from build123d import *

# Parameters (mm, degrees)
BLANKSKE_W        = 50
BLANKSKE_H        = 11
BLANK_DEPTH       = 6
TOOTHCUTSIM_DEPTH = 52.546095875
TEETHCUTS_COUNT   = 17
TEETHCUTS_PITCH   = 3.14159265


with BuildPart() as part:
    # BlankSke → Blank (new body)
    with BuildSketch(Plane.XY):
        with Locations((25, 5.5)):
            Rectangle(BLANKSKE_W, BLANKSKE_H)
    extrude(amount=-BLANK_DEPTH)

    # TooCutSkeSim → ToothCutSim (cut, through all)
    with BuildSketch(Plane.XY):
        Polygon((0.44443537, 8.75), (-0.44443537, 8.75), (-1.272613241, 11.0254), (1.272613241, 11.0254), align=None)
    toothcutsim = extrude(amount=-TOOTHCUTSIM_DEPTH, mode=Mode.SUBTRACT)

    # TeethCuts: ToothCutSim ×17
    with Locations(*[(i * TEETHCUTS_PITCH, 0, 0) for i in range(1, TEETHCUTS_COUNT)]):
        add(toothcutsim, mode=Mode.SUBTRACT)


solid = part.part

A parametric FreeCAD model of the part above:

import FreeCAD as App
import Part
import Sketcher

V = App.Vector
Q = App.Units.Quantity

doc = App.newDocument("Part")
params = doc.addObject("Spreadsheet::Sheet", "Params")
for row, (alias, value) in enumerate([
    ("sketch1_width", "50 mm"),
    ("sketch1_height", "11 mm"),
    ("pad1_length", "6 mm"),
    ("linearpattern_pitch", "3.141593 mm"),
], start=1):
    params.set(f"A{row}", alias)
    params.set(f"B{row}", "=" + value)
    params.setAlias(f"B{row}", alias)

body = doc.addObject("PartDesign::Body", "Body")

sketch1 = body.newObject("Sketcher::SketchObject", "Sketch")
sketch1.AttachmentSupport = (doc.getObject("XY_Plane"), [""])
sketch1.MapMode = "FlatFace"
sketch1.addGeometry(Part.LineSegment(V(0, 11, 0), V(0, 0, 0)), False)
sketch1.addGeometry(Part.LineSegment(V(0, 0, 0), V(50, 0, 0)), False)
sketch1.addGeometry(Part.LineSegment(V(50, 0, 0), V(50, 11, 0)), False)
sketch1.addGeometry(Part.LineSegment(V(50, 11, 0), V(0, 11, 0)), False)
sketch1.addConstraint(Sketcher.Constraint("Coincident", 0, 2, 1, 1))
sketch1.addConstraint(Sketcher.Constraint("Coincident", 1, 2, 2, 1))
sketch1.addConstraint(Sketcher.Constraint("Coincident", 2, 2, 3, 1))
sketch1.addConstraint(Sketcher.Constraint("Coincident", 3, 2, 0, 1))
sketch1.addConstraint(Sketcher.Constraint("Vertical", 0))
sketch1.addConstraint(Sketcher.Constraint("Horizontal", 1))
sketch1.addConstraint(Sketcher.Constraint("Vertical", 2))
sketch1.addConstraint(Sketcher.Constraint("Horizontal", 3))
sketch1.addConstraint(Sketcher.Constraint("Coincident", 0, 2, -1, 1))
sketch1.addConstraint(Sketcher.Constraint("DistanceX", 1, 1, 1, 2, Q("50 mm")))
sketch1.addConstraint(Sketcher.Constraint("DistanceY", 0, 2, 0, 1, Q("11 mm")))
sketch1.setExpression("Constraints[9]", "Params.sketch1_width")
sketch1.setExpression("Constraints[10]", "Params.sketch1_height")
pad1 = body.newObject("PartDesign::Pad", "Pad")
pad1.Profile = sketch1
pad1.setExpression("Length", "Params.pad1_length")
pad1.Reversed = True

sketch2 = body.newObject("Sketcher::SketchObject", "Sketch001")
sketch2.AttachmentSupport = (doc.getObject("XY_Plane"), [""])
sketch2.MapMode = "FlatFace"
sketch2.addGeometry(Part.LineSegment(V(-0.444435, 8.75, 0), V(0.444435, 8.75, 0)), False)
sketch2.addGeometry(Part.LineSegment(V(0.444435, 8.75, 0), V(1.272613, 11.0254, 0)), False)
sketch2.addGeometry(Part.LineSegment(V(1.272613, 11.0254, 0), V(-1.272613, 11.0254, 0)), False)
sketch2.addGeometry(Part.LineSegment(V(-1.272613, 11.0254, 0), V(-0.444435, 8.75, 0)), False)
sketch2.addConstraint(Sketcher.Constraint("Coincident", 0, 2, 1, 1))
sketch2.addConstraint(Sketcher.Constraint("Coincident", 1, 2, 2, 1))
sketch2.addConstraint(Sketcher.Constraint("Coincident", 2, 2, 3, 1))
sketch2.addConstraint(Sketcher.Constraint("Coincident", 3, 2, 0, 1))
sketch2.addConstraint(Sketcher.Constraint("Horizontal", 0))
sketch2.addConstraint(Sketcher.Constraint("Horizontal", 2))
sketch2.addConstraint(Sketcher.Constraint("Equal", 1, 3))
sketch2.addConstraint(Sketcher.Constraint("Angle", 1, Q("70 deg")))
sketch2.addConstraint(Sketcher.Constraint("DistanceY", -1, 1, 0, 2, Q("8.75 mm")))
sketch2.addConstraint(Sketcher.Constraint("DistanceX", 0, 1, 0, 2, Q("0.888871 mm")))
sketch2.addConstraint(Sketcher.Constraint("DistanceY", -1, 1, 1, 2, Q("11.0254 mm")))
sketch2.addConstraint(Sketcher.Constraint("DistanceX", -1, 1, 0, 2, Q("0.444435 mm")))
pocket1 = body.newObject("PartDesign::Pocket", "Pocket")
pocket1.Profile = sketch2
pocket1.Type = "ThroughAll"
doc.recompute()

linearpattern = body.newObject("PartDesign::LinearPattern", "LinearPattern")
linearpattern.Originals = [pocket1]
linearpattern.Direction = (doc.getObject("X_Axis"), [""])
linearpattern.Mode = "offset"
linearpattern.setExpression("Offset", "Params.linearpattern_pitch")
linearpattern.Occurrences = 17
body.Tip = linearpattern

doc.recompute()
